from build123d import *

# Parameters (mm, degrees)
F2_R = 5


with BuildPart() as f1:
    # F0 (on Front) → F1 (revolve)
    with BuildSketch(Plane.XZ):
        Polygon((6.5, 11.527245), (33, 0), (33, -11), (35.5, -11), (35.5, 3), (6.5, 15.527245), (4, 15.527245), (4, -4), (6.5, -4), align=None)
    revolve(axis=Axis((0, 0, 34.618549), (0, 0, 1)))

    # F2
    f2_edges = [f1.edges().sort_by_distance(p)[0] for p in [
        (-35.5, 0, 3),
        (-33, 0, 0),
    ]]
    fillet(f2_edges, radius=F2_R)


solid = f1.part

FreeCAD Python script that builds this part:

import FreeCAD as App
import Part
import Sketcher

V = App.Vector


def edges_at(feature, points):
    """Names of the edges that pass closest to the given points."""
    edges = feature.Shape.Edges
    near = lambda p: min(range(len(edges)), key=lambda i: edges[i].distToShape(Part.Vertex(*p))[0])
    return sorted({f"Edge{near(p) + 1}" for p in points})

doc = App.newDocument("Part")
params = doc.addObject("Spreadsheet::Sheet", "Params")
for row, (alias, value) in enumerate([
    ("sketch1_height", "11 mm"),
    ("sketch1_height2", "14 mm"),
    ("sketch1_width", "2.5 mm"),
    ("revolution_angle", "360 deg"),
    ("fillet_radius", "5 mm"),
], start=1):
    params.set(f"A{row}", alias)
    params.set(f"B{row}", "=" + value)
    params.setAlias(f"B{row}", alias)

body = doc.addObject("PartDesign::Body", "Body")

# Sketch on XZ plane
sketch1 = body.newObject("Sketcher::SketchObject", "Sketch")
sketch1.AttachmentSupport = (doc.getObject("XZ_Plane"), [""])
sketch1.MapMode = "FlatFace"
sketch1.addGeometry([
    Part.LineSegment(V(6.5, 11.5, 0), V(33, 0, 0)),  # 0
    Part.LineSegment(V(33, 0, 0), V(33, -11, 0)),  # 1
    Part.LineSegment(V(33, -11, 0), V(35.5, -11, 0)),  # 2
    Part.LineSegment(V(35.5, -11, 0), V(35.5, 3, 0)),  # 3
    Part.LineSegment(V(35.5, 3, 0), V(6.5, 15.5, 0)),  # 4
    Part.LineSegment(V(6.5, 15.5, 0), V(4, 15.5, 0)),  # 5
    Part.LineSegment(V(4, 15.5, 0), V(4, -4, 0)),  # 6
    Part.LineSegment(V(4, -4, 0), V(6.5, -4, 0)),  # 7
    Part.LineSegment(V(6.5, -4, 0), V(6.5, 11.5, 0)),  # 8
], False)
sketch1.addConstraint([
    Sketcher.Constraint("Coincident", 0, 2, 1, 1),
    Sketcher.Constraint("Coincident", 1, 2, 2, 1),
    Sketcher.Constraint("Coincident", 2, 2, 3, 1),
    Sketcher.Constraint("Coincident", 3, 2, 4, 1),
    Sketcher.Constraint("Coincident", 4, 2, 5, 1),
    Sketcher.Constraint("Coincident", 5, 2, 6, 1),
    Sketcher.Constraint("Coincident", 6, 2, 7, 1),
    Sketcher.Constraint("Coincident", 7, 2, 8, 1),
    Sketcher.Constraint("Coincident", 8, 2, 0, 1),
    Sketcher.Constraint("Vertical", 1),
    Sketcher.Constraint("Horizontal", 2),
    Sketcher.Constraint("Vertical", 3),
    Sketcher.Constraint("Horizontal", 5),
    Sketcher.Constraint("Vertical", 6),
    Sketcher.Constraint("Horizontal", 7),
    Sketcher.Constraint("Vertical", 8),
    Sketcher.Constraint("PointOnObject", 0, 2, -1),
    Sketcher.Constraint("Vertical", 4, 2, 7, 2),
    Sketcher.Constraint("Equal", 2, 5),
    Sketcher.Constraint("DistanceY", 1, 2, 1, 1, 11.0),
    Sketcher.Constraint("DistanceY", 3, 1, 3, 2, 14.0),
    Sketcher.Constraint("DistanceX", 2, 1, 2, 2, 2.5),
    Sketcher.Constraint("DistanceX", -1, 1, 0, 2, 33.0),
    Sketcher.Constraint("DistanceX", -1, 1, 5, 2, 4.0),
    Sketcher.Constraint("DistanceY", 6, 2, -1, 1, 4.0),
    Sketcher.Constraint("DistanceY", 8, 2, 4, 2, 4.0),
    Sketcher.Constraint("Distance", 0, 28.898571),
])
sketch1.setExpression("Constraints[19]", "Params.sketch1_height")
sketch1.setExpression("Constraints[20]", "Params.sketch1_height2")
sketch1.setExpression("Constraints[21]", "Params.sketch1_width")
revolution = body.newObject("PartDesign::Revolution", "Revolution")
revolution.Profile = sketch1
revolution.ReferenceAxis = (sketch1, ["V_Axis"])
revolution.setExpression("Angle", "Params.revolution_angle")
doc.recompute()

fillet = body.newObject("PartDesign::Fillet", "Fillet")
fillet.Base = (revolution, edges_at(revolution, [(-35.5, 0, 3), (-33, 0, 0)]))
fillet.setExpression("Radius", "Params.fillet_radius")

doc.recompute()
